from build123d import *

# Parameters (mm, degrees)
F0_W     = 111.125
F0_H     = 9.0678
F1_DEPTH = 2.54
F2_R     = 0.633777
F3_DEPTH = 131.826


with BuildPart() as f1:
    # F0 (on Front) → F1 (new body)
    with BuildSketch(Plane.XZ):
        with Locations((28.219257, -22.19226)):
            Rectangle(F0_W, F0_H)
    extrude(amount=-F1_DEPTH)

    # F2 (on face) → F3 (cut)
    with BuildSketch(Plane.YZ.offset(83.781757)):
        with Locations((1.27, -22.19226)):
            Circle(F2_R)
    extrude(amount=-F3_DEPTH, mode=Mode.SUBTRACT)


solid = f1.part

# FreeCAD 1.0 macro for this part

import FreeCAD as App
import Part
import Sketcher
Q = App.Units.Quantity

doc = App.newDocument("Part")
body = doc.addObject("PartDesign::Body", "Body")

# Sketch on XZ plane
sketch1 = doc.addObject("Sketcher::SketchObject", "Sketch")
body.addObject(sketch1)
sketch1.AttachmentSupport = (doc.XZ_Plane, [""])
sketch1.MapMode = "FlatFace"
sketch1.addGeometry([
    Part.LineSegment(App.Vector(-27, -18, 0), App.Vector(-27, -27, 0)),
    Part.LineSegment(App.Vector(-27, -27, 0), App.Vector(84, -27, 0)),
    Part.LineSegment(App.Vector(84, -27, 0), App.Vector(84, -18, 0)),
    Part.LineSegment(App.Vector(84, -18, 0), App.Vector(-27, -18, 0)),
], False)
sketch1.addConstraint([
    Sketcher.Constraint("Coincident", 0, 2, 1, 1),
    Sketcher.Constraint("Coincident", 1, 2, 2, 1),
    Sketcher.Constraint("Coincident", 2, 2, 3, 1),
    Sketcher.Constraint("Coincident", 3, 2, 0, 1),
    Sketcher.Constraint("Vertical", 0),
    Sketcher.Constraint("Horizontal", 1),
    Sketcher.Constraint("Vertical", 2),
    Sketcher.Constraint("Horizontal", 3),
    Sketcher.Constraint("DistanceX", 1, 1, 1, 2, Q("4.375 in")),
    Sketcher.Constraint("DistanceY", 0, 2, 0, 1, Q("0.357 in")),
    Sketcher.Constraint("DistanceY", 0, 2, -1, 1, Q("26.72616 mm")),
    Sketcher.Constraint("DistanceX", 0, 2, -1, 1, Q("27.343243 mm")),
])
pad1 = doc.addObject("PartDesign::Pad", "Pad")
body.addObject(pad1)
pad1.Profile = sketch1
pad1.Length = Q("0.1 in")
pad1.Reversed = True

# Sketch on YZ plane
sketch2 = doc.addObject("Sketcher::SketchObject", "Sketch001")
body.addObject(sketch2)
sketch2.AttachmentSupport = (doc.YZ_Plane, [""])
sketch2.MapMode = "FlatFace"
sketch2.AttachmentOffset = App.Placement(App.Vector(0, 0, 83.781757), App.Rotation())
sketch2.addGeometry(Part.Circle(App.Vector(1.3, -22.2, 0), App.Vector(0, 0, 1), 0.6), False)
sketch2.addConstraint([
    Sketcher.Constraint("DistanceX", -1, 1, 0, 3, Q("0.05 in")),
    Sketcher.Constraint("Diameter", 0, Q("1.267554 mm")),
    Sketcher.Constraint("DistanceY", 0, 3, -1, 1, Q("22.19226 mm")),
])
pocket1 = doc.addObject("PartDesign::Pocket", "Pocket")
body.addObject(pocket1)
pocket1.Profile = sketch2
pocket1.Length = Q("5.19 in")

doc.recompute()
